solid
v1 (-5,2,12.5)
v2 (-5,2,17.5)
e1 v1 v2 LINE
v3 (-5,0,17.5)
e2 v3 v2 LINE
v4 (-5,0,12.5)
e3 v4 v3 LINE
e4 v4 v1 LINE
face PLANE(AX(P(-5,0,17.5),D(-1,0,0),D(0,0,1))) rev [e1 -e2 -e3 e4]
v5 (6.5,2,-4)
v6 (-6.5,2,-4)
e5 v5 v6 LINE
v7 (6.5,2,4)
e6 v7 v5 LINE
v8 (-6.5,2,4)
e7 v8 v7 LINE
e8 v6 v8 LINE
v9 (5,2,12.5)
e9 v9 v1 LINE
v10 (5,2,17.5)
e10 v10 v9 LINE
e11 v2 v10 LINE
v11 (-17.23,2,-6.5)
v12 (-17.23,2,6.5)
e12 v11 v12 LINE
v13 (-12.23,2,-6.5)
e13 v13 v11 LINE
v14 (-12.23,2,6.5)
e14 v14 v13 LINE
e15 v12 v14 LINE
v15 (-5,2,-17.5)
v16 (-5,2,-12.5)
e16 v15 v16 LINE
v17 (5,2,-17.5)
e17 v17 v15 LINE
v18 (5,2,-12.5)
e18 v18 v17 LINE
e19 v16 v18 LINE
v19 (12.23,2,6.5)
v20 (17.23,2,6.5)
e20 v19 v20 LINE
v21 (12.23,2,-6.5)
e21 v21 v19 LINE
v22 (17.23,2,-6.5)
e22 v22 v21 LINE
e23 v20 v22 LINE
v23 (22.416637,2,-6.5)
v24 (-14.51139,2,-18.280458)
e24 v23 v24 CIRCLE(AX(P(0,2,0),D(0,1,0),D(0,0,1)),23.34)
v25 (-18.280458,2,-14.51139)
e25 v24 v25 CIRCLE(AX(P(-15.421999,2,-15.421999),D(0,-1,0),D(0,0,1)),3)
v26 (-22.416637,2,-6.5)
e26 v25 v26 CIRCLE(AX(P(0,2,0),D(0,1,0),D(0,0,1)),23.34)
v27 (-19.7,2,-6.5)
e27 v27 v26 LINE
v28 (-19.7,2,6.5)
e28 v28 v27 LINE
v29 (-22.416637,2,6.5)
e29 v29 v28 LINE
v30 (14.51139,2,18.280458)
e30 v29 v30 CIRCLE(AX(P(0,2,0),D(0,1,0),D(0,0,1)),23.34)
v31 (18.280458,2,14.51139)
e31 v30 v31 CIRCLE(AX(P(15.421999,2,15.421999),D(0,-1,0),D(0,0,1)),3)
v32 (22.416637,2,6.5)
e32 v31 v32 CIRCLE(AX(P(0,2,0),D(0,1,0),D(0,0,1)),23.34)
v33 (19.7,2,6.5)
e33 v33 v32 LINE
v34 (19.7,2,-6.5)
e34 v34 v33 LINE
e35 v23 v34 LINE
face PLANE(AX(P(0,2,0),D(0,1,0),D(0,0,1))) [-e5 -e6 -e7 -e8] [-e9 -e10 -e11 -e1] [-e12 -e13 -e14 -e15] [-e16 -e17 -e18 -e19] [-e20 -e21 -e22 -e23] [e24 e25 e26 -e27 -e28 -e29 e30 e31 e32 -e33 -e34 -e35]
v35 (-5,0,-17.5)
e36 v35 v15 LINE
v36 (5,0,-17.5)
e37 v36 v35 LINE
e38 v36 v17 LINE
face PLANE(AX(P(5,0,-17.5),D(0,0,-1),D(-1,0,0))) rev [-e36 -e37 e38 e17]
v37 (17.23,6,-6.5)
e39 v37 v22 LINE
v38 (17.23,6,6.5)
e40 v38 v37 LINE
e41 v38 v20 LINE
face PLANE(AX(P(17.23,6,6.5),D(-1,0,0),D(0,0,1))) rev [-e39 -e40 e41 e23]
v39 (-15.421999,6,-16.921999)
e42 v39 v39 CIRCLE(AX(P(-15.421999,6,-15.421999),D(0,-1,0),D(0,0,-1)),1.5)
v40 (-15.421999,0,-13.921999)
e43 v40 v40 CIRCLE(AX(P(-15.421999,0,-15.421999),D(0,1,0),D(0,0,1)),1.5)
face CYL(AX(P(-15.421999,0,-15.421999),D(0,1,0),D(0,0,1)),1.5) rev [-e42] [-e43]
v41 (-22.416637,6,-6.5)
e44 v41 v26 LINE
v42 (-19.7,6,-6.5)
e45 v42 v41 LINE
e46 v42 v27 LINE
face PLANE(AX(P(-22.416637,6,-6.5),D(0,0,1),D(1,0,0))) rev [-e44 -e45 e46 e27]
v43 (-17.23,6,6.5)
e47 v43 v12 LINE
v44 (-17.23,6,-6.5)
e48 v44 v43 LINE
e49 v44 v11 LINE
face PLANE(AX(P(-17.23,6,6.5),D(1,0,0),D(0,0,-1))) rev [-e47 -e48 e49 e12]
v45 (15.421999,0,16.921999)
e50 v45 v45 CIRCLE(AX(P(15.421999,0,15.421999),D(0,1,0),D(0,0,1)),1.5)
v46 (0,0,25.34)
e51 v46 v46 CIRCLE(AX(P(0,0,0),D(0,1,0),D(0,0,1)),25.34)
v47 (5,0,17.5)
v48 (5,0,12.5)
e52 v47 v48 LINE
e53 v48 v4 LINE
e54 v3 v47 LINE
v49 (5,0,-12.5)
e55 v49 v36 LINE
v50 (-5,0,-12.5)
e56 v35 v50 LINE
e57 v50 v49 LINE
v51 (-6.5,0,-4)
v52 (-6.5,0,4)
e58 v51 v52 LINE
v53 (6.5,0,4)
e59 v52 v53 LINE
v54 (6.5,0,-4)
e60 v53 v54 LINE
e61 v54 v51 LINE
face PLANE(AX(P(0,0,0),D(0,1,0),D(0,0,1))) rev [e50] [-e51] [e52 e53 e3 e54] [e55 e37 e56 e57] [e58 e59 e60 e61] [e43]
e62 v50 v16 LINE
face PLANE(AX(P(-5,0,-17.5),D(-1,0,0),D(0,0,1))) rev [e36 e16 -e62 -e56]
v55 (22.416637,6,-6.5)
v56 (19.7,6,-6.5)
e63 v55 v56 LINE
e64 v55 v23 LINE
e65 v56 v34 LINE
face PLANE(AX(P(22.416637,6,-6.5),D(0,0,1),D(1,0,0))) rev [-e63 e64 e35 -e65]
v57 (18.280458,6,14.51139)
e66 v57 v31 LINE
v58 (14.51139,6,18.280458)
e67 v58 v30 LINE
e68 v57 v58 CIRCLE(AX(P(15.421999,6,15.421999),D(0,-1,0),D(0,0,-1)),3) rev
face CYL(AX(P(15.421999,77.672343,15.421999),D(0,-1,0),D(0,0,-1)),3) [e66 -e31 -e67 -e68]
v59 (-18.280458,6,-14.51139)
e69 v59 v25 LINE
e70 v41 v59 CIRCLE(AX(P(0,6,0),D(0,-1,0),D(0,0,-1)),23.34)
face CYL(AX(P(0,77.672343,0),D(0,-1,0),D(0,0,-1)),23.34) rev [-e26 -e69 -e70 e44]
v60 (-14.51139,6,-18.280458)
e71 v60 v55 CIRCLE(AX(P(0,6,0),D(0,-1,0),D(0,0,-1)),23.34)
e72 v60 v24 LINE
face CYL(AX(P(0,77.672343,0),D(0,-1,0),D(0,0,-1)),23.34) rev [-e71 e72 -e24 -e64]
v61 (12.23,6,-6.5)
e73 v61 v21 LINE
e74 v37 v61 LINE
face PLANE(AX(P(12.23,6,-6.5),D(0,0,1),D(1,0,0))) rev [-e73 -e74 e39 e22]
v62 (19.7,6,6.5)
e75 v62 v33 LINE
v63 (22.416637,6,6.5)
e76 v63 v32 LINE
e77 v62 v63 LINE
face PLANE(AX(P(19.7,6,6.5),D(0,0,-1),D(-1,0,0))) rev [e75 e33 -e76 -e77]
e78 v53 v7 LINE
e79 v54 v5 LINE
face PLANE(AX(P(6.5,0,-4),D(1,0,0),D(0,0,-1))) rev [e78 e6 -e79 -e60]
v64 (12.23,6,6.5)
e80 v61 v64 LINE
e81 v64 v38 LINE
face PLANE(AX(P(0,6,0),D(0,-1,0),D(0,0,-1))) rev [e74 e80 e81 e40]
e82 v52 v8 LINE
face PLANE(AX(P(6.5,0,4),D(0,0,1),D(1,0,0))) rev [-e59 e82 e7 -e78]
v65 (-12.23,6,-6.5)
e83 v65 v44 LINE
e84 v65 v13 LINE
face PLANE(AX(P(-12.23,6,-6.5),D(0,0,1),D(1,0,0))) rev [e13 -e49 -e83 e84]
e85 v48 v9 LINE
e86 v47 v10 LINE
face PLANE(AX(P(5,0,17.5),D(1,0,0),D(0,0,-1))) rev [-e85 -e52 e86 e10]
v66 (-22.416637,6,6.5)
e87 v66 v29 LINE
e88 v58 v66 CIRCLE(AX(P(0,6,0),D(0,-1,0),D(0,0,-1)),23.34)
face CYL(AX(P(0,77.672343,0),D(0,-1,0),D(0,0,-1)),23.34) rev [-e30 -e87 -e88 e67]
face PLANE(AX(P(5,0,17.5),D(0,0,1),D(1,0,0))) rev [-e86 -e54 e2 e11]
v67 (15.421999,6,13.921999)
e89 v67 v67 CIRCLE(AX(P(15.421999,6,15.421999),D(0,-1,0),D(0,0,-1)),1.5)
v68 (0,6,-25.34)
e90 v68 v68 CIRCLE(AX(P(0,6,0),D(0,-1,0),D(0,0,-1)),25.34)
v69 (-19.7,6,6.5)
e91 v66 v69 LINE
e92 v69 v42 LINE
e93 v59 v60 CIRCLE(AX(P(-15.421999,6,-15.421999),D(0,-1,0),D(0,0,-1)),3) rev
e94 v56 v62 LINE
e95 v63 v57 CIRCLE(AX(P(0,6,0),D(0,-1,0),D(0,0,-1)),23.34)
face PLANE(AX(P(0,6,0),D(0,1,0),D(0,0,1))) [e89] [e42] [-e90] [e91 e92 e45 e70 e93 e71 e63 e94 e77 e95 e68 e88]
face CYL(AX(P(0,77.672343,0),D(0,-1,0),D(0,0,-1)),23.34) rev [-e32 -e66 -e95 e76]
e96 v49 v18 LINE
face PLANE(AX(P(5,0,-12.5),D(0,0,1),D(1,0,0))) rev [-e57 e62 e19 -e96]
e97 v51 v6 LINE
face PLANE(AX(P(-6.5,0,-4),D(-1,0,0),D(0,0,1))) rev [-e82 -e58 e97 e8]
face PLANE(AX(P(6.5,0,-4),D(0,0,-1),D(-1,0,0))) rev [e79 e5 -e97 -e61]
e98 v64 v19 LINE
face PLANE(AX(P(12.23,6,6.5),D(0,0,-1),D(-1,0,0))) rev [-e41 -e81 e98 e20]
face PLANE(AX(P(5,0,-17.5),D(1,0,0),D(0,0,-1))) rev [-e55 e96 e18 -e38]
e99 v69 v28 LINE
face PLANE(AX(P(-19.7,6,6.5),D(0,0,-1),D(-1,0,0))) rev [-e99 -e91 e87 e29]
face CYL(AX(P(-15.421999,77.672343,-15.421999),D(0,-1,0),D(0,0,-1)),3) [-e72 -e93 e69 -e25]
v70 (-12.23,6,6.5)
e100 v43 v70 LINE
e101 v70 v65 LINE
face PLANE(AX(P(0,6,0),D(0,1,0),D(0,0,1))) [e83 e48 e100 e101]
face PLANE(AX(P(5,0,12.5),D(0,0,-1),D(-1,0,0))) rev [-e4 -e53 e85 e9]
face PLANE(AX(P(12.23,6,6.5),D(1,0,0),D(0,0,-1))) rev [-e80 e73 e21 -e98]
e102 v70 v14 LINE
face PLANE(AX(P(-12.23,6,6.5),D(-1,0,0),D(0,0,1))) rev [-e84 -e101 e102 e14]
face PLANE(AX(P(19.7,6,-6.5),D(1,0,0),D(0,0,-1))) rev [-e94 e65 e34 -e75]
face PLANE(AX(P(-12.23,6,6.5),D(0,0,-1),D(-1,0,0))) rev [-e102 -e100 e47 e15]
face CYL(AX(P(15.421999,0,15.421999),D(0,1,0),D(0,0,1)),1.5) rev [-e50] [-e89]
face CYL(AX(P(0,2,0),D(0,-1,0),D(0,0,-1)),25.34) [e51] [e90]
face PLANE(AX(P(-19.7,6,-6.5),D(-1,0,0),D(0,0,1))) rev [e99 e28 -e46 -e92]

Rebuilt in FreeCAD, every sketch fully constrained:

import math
import FreeCAD as App
import Part
import Sketcher

V = App.Vector


def add_polygon(sketch, points):
    """Adds a closed chain of lines whose ends are joined by coincident constraints."""
    first, n = sketch.GeometryCount, len(points)
    for a, b in zip(points, points[1:] + points[:1]):
        sketch.addGeometry(Part.LineSegment(App.Vector(*a, 0), App.Vector(*b, 0)), False)
    for i in range(n):
        sketch.addConstraint(Sketcher.Constraint("Coincident", first + i, 2, first + (i + 1) % n, 1))

doc = App.newDocument("Part")
body = doc.addObject("PartDesign::Body", "Body")

# Sketch on XZ plane
sketch1 = doc.addObject("Sketcher::SketchObject", "Sketch")
body.addObject(sketch1)
sketch1.AttachmentSupport = (doc.XZ_Plane, [""])
sketch1.MapMode = "FlatFace"
sketch1.addGeometry(Part.Circle(V(0, 0, 0), V(0, 0, 1), 25.34), False)
sketch1.addConstraint([
    Sketcher.Constraint("Coincident", 0, 3, -1, 1),
    Sketcher.Constraint("Diameter", 0, 50.68),
])
pad1 = doc.addObject("PartDesign::Pad", "Pad")
body.addObject(pad1)
pad1.Profile = sketch1
pad1.Length = 2
pad1.Reversed = True

# Sketch on XZ plane
sketch2 = doc.addObject("Sketcher::SketchObject", "Sketch001")
body.addObject(sketch2)
sketch2.AttachmentSupport = (doc.XZ_Plane, [""])
sketch2.MapMode = "FlatFace"
sketch2.AttachmentOffset = App.Placement(V(0, 0, -2), App.Rotation())
add_polygon(sketch2, [(12.23, -6.5), (12.23, 6.5), (17.23, 6.5), (17.23, -6.5)])  # lines 0-3
sketch2.addGeometry(Part.LineSegment(V(22.416637, -6.5, 0), V(19.7, -6.5, 0)), False)  # 4
sketch2.addGeometry(Part.LineSegment(V(19.7, -6.5, 0), V(19.7, 6.5, 0)), False)  # 5
sketch2.addGeometry(Part.LineSegment(V(19.7, 6.5, 0), V(22.416637, 6.5, 0)), False)  # 6
sketch2.addGeometry(Part.ArcOfCircle(Part.Circle(V(0, 0, 0), V(0, 0, 1), 23.34), math.radians(-16.170215), math.radians(16.170215)), False)  # 7
sketch2.addGeometry(Part.LineSegment(V(-22.416637, 6.5, 0), V(-19.7, 6.5, 0)), False)  # 8
sketch2.addGeometry(Part.LineSegment(V(-19.7, 6.5, 0), V(-19.7, -6.5, 0)), False)  # 9
sketch2.addGeometry(Part.LineSegment(V(-19.7, -6.5, 0), V(-22.416637, -6.5, 0)), False)  # 10
sketch2.addGeometry(Part.ArcOfCircle(Part.Circle(V(0, 0, 0), V(0, 0, 1), 23.34), math.radians(163.829785), math.radians(196.170215)), False)  # 11
add_polygon(sketch2, [(-17.23, -6.5), (-17.23, 6.5), (-12.23, 6.5), (-12.23, -6.5)])  # lines 12-15
sketch2.addConstraint([
    Sketcher.Constraint("Coincident", 4, 2, 5, 1),
    Sketcher.Constraint("Coincident", 5, 2, 6, 1),
    Sketcher.Constraint("Coincident", 6, 2, 7, 2),
    Sketcher.Constraint("Coincident", 7, 1, 4, 1),
    Sketcher.Constraint("Coincident", 8, 2, 9, 1),
    Sketcher.Constraint("Coincident", 9, 2, 10, 1),
    Sketcher.Constraint("Coincident", 10, 2, 11, 2),
    Sketcher.Constraint("Coincident", 11, 1, 8, 1),
    Sketcher.Constraint("Vertical", 0),
    Sketcher.Constraint("Horizontal", 1),
    Sketcher.Constraint("Vertical", 2),
    Sketcher.Constraint("Horizontal", 3),
    Sketcher.Constraint("Horizontal", 4),
    Sketcher.Constraint("Vertical", 5),
    Sketcher.Constraint("Horizontal", 6),
    Sketcher.Constraint("Horizontal", 8),
    Sketcher.Constraint("Vertical", 9),
    Sketcher.Constraint("Horizontal", 10),
    Sketcher.Constraint("Vertical", 12),
    Sketcher.Constraint("Horizontal", 13),
    Sketcher.Constraint("Vertical", 14),
    Sketcher.Constraint("Horizontal", 15),
    Sketcher.Constraint("Coincident", 7, 3, -1, 1),
    Sketcher.Constraint("Coincident", 11, 3, -1, 1),
    Sketcher.Constraint("Equal", 7, 11),
    Sketcher.Constraint("Symmetric", 4, 2, 8, 2, -1, 1),
    Sketcher.Constraint("Symmetric", 2, 2, 12, 2, -1, 1),
    Sketcher.Constraint("Symmetric", 0, 2, 14, 2, -1, 1),
    Sketcher.Constraint("Horizontal", 3, 2, 4, 2),
    Sketcher.Constraint("Horizontal", 1, 2, 5, 2),
    Sketcher.Constraint("Horizontal", 6, 2, 8, 2),
    Sketcher.Constraint("Horizontal", 7, 1, 9, 2),
    Sketcher.Constraint("DistanceX", 1, 1, 1, 2, 5.0),
    Sketcher.Constraint("DistanceY", 0, 1, 0, 2, 13.0),
    Sketcher.Constraint("Radius", 7, 23.34),
    Sketcher.Constraint("DistanceX", -1, 1, 4, 2, 19.7),
    Sketcher.Constraint("DistanceX", -1, 1, 0, 2, 12.23),
])
pad2 = doc.addObject("PartDesign::Pad", "Pad001")
body.addObject(pad2)
pad2.Profile = sketch2
pad2.Length = 4
pad2.Reversed = True

# Sketch on XZ plane
sketch3 = doc.addObject("Sketcher::SketchObject", "Sketch002")
body.addObject(sketch3)
sketch3.AttachmentSupport = (doc.XZ_Plane, [""])
sketch3.MapMode = "FlatFace"
sketch3.AttachmentOffset = App.Placement(V(0, 0, -2), App.Rotation())
sketch3.addGeometry([
    Part.Circle(V(-15.421999, -15.421999, 0), V(0, 0, 1), 1.5),
    Part.Circle(V(15.421999, 15.421999, 0), V(0, 0, 1), 1.5),
], False)
sketch3.addConstraint([
    Sketcher.Constraint("Equal", 0, 1),
    Sketcher.Constraint("Symmetric", 0, 3, 1, 3, -1, 1),
    Sketcher.Constraint("Diameter", 0, 3.0),
    Sketcher.Constraint("DistanceX", 0, 3, -1, 1, 15.421999),
    Sketcher.Constraint("DistanceY", 0, 3, -1, 1, 15.421999),
])
pocket1 = doc.addObject("PartDesign::Pocket", "Pocket")
body.addObject(pocket1)
pocket1.Profile = sketch3
pocket1.Type = "ThroughAll"
pocket1.Reversed = True

# Sketch on XZ plane
sketch4 = doc.addObject("Sketcher::SketchObject", "Sketch003")
body.addObject(sketch4)
sketch4.AttachmentSupport = (doc.XZ_Plane, [""])
sketch4.MapMode = "FlatFace"
sketch4.AttachmentOffset = App.Placement(V(0, 0, -2), App.Rotation())
add_polygon(sketch4, [(-5, -17.5), (-5, -12.5), (5, -12.5), (5, -17.5)])  # lines 0-3
add_polygon(sketch4, [(-5, 12.5), (-5, 17.5), (5, 17.5), (5, 12.5)])  # lines 4-7
add_polygon(sketch4, [(-6.5, -4), (-6.5, 4), (6.5, 4), (6.5, -4)])  # lines 8-11
sketch4.addConstraint([
    Sketcher.Constraint("Vertical", 0),
    Sketcher.Constraint("Horizontal", 1),
    Sketcher.Constraint("Vertical", 2),
    Sketcher.Constraint("Horizontal", 3),
    Sketcher.Constraint("Vertical", 4),
    Sketcher.Constraint("Horizontal", 5),
    Sketcher.Constraint("Vertical", 6),
    Sketcher.Constraint("Horizontal", 7),
    Sketcher.Constraint("Vertical", 8),
    Sketcher.Constraint("Horizontal", 9),
    Sketcher.Constraint("Vertical", 10),
    Sketcher.Constraint("Horizontal", 11),
    Sketcher.Constraint("Symmetric", 2, 2, 4, 2, -1, 1),
    Sketcher.Constraint("Symmetric", 0, 2, 6, 2, -1, 1),
    Sketcher.Constraint("Symmetric", 8, 2, 10, 2, -1, 1),
    Sketcher.Constraint("Vertical", 3, 2, 4, 2),
    Sketcher.Constraint("DistanceX", 1, 1, 1, 2, 10.0),
    Sketcher.Constraint("DistanceX", 9, 1, 9, 2, 13.0),
    Sketcher.Constraint("DistanceY", 0, 1, 0, 2, 5.0),
    Sketcher.Constraint("DistanceY", 8, 1, 8, 2, 8.0),
    Sketcher.Constraint("DistanceY", 0, 2, 4, 2, 30.0),
])
pocket2 = doc.addObject("PartDesign::Pocket", "Pocket001")
body.addObject(pocket2)
pocket2.Profile = sketch4
pocket2.Type = "ThroughAll"
pocket2.Reversed = True

# Sketch on XZ plane
sketch5 = doc.addObject("Sketcher::SketchObject", "Sketch004")
body.addObject(sketch5)
sketch5.AttachmentSupport = (doc.XZ_Plane, [""])
sketch5.MapMode = "FlatFace"
sketch5.AttachmentOffset = App.Placement(V(0, 0, -2), App.Rotation())
sketch5.addGeometry([
    Part.Circle(V(0, 0, 0), V(0, 0, 1), 25.34),  # 0
    Part.Circle(V(15.421999, 15.421999, 0), V(0, 0, 1), 1.5),  # 1
    Part.Circle(V(-15.421999, -15.421999, 0), V(0, 0, 1), 1.5),  # 2
    Part.ArcOfCircle(Part.Circle(V(0, 0, 0), V(0, 0, 1), 23.34), math.radians(-128.443242), math.radians(38.443242)),  # 3
    Part.ArcOfCircle(Part.Circle(V(15.421999, 15.421999, 0), V(0, 0, 1), 3), math.radians(107.670128), math.radians(342.329872)),  # 4
    Part.ArcOfCircle(Part.Circle(V(0, 0, 0), V(0, 0, 1), 23.34), math.radians(51.556758), math.radians(218.443242)),  # 5
    Part.ArcOfCircle(Part.Circle(V(-15.421999, -15.421999, 0), V(0, 0, 1), 3), math.radians(-72.329872), math.radians(162.329872)),  # 6
], False)
sketch5.addConstraint([
    Sketcher.Constraint("Coincident", 3, 2, 4, 2),
    Sketcher.Constraint("Coincident", 4, 1, 5, 1),
    Sketcher.Constraint("Coincident", 5, 2, 6, 2),
    Sketcher.Constraint("Coincident", 6, 1, 3, 1),
    Sketcher.Constraint("Coincident", 0, 3, -1, 1),
    Sketcher.Constraint("Coincident", 3, 3, -1, 1),
    Sketcher.Constraint("Coincident", 5, 3, -1, 1),
    Sketcher.Constraint("Coincident", 4, 3, 1, 3),
    Sketcher.Constraint("Coincident", 6, 3, 2, 3),
    Sketcher.Constraint("Equal", 1, 2),
    Sketcher.Constraint("Equal", 3, 5),
    Sketcher.Constraint("Equal", 4, 6),
    Sketcher.Constraint("Symmetric", 1, 3, 2, 3, -1, 1),
    Sketcher.Constraint("Diameter", 1, 3.0),
    Sketcher.Constraint("Radius", 4, 3.0),
    Sketcher.Constraint("Diameter", 0, 50.68),
    Sketcher.Constraint("Radius", 3, 23.34),
    Sketcher.Constraint("DistanceX", -1, 1, 1, 3, 15.421999),
    Sketcher.Constraint("DistanceY", -1, 1, 1, 3, 15.421999),
])
pad3 = doc.addObject("PartDesign::Pad", "Pad002")
body.addObject(pad3)
pad3.Profile = sketch5
pad3.Length = 4
pad3.Reversed = True

doc.recompute()
